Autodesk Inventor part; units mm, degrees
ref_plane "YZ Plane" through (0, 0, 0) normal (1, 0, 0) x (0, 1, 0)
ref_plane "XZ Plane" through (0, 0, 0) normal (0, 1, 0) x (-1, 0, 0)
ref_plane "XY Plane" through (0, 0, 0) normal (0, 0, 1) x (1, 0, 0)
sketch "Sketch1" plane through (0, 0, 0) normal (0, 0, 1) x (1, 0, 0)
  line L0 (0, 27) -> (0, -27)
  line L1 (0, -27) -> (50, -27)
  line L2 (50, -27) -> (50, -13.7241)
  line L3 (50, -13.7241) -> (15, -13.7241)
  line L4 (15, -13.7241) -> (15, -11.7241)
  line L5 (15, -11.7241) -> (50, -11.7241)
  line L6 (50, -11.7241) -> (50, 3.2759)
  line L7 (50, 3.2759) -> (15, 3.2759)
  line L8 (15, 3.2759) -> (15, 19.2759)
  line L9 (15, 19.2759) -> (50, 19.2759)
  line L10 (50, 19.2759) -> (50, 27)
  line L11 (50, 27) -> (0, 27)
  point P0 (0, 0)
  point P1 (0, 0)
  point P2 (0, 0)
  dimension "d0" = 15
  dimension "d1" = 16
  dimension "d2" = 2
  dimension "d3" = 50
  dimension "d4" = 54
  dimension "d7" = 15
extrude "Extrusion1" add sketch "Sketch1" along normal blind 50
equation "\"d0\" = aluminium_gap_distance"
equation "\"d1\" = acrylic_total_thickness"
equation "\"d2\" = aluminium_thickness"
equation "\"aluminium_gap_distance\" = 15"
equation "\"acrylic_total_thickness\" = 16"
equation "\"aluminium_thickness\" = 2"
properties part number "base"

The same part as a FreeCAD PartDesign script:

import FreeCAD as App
import Part
import Sketcher
from FreeCAD import Vector
Q = App.Units.Quantity

doc = App.newDocument("Part")
body = doc.addObject("PartDesign::Body", "Body")

sketch1 = doc.addObject("Sketcher::SketchObject", "Sketch")
body.addObject(sketch1)
sketch1.AttachmentSupport = (doc.XY_Plane, [""])
sketch1.MapMode = "FlatFace"
sketch1.addGeometry([
    Part.LineSegment(Vector(50, 27, 0), Vector(0, 27, 0)),
    Part.LineSegment(Vector(0, 27, 0), Vector(0, -27, 0)),
    Part.LineSegment(Vector(0, -27, 0), Vector(50, -27, 0)),
    Part.LineSegment(Vector(50, -27, 0), Vector(50, -13.7241, 0)),
    Part.LineSegment(Vector(50, -13.7241, 0), Vector(15, -13.7241, 0)),
    Part.LineSegment(Vector(15, -13.7241, 0), Vector(15, -11.7241, 0)),
    Part.LineSegment(Vector(15, -11.7241, 0), Vector(50, -11.7241, 0)),
    Part.LineSegment(Vector(50, -11.7241, 0), Vector(50, 3.2759, 0)),
    Part.LineSegment(Vector(50, 3.2759, 0), Vector(15, 3.2759, 0)),
    Part.LineSegment(Vector(15, 3.2759, 0), Vector(15, 19.2759, 0)),
    Part.LineSegment(Vector(15, 19.2759, 0), Vector(50, 19.2759, 0)),
    Part.LineSegment(Vector(50, 19.2759, 0), Vector(50, 27, 0)),
], False)
sketch1.addConstraint([
    Sketcher.Constraint("Coincident", 0, 2, 1, 1),
    Sketcher.Constraint("Coincident", 1, 2, 2, 1),
    Sketcher.Constraint("Coincident", 2, 2, 3, 1),
    Sketcher.Constraint("Coincident", 3, 2, 4, 1),
    Sketcher.Constraint("Coincident", 4, 2, 5, 1),
    Sketcher.Constraint("Coincident", 5, 2, 6, 1),
    Sketcher.Constraint("Coincident", 6, 2, 7, 1),
    Sketcher.Constraint("Coincident", 7, 2, 8, 1),
    Sketcher.Constraint("Coincident", 8, 2, 9, 1),
    Sketcher.Constraint("Coincident", 9, 2, 10, 1),
    Sketcher.Constraint("Coincident", 10, 2, 11, 1),
    Sketcher.Constraint("Coincident", 11, 2, 0, 1),
    Sketcher.Constraint("Horizontal", 0),
    Sketcher.Constraint("Vertical", 1),
    Sketcher.Constraint("Horizontal", 2),
    Sketcher.Constraint("Vertical", 3),
    Sketcher.Constraint("Horizontal", 4),
    Sketcher.Constraint("Vertical", 5),
    Sketcher.Constraint("Horizontal", 6),
    Sketcher.Constraint("Vertical", 7),
    Sketcher.Constraint("Horizontal", 8),
    Sketcher.Constraint("Vertical", 9),
    Sketcher.Constraint("Horizontal", 10),
    Sketcher.Constraint("Vertical", 11),
    Sketcher.Constraint("Symmetric", 0, 2, 1, 2, -1, 1),
    Sketcher.Constraint("Vertical", 3, 2, 6, 2),
    Sketcher.Constraint("Vertical", 5, 2, 8, 2),
    Sketcher.Constraint("Vertical", 7, 2, 10, 2),
    Sketcher.Constraint("DistanceX", 0, 2, 0, 1, Q("50 mm")),
    Sketcher.Constraint("DistanceY", 1, 2, 1, 1, Q("54 mm")),
    Sketcher.Constraint("DistanceY", 5, 1, 5, 2, Q("2 mm")),
    Sketcher.Constraint("DistanceY", 7, 1, 7, 2, Q("15 mm")),
    Sketcher.Constraint("DistanceY", 9, 1, 9, 2, Q("16 mm")),
    Sketcher.Constraint("DistanceX", -1, 1, 4, 2, Q("15 mm")),
    Sketcher.Constraint("DistanceY", 3, 1, 3, 2, Q("13.276 mm")),
])
pad1 = doc.addObject("PartDesign::Pad", "Pad")
body.addObject(pad1)
pad1.Profile = sketch1
pad1.Length = 50

doc.recompute()
